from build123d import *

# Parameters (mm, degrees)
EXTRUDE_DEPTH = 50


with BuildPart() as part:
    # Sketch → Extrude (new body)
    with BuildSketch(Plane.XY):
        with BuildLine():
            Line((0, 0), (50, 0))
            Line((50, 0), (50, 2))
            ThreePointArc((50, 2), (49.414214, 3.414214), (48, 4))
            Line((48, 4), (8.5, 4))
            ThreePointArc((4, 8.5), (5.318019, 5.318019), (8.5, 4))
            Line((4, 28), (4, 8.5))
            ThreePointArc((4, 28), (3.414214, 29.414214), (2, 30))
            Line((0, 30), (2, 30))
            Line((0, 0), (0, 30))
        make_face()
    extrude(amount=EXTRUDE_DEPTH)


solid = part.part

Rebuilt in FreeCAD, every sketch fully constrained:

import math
import FreeCAD as App
import Part
import Sketcher
from FreeCAD import Vector

doc = App.newDocument("Part")
body = doc.addObject("PartDesign::Body", "Body")

# Sketch on XY plane
sketch1 = doc.addObject("Sketcher::SketchObject", "Sketch")
body.addObject(sketch1)
sketch1.AttachmentSupport = (doc.XY_Plane, [""])
sketch1.MapMode = "FlatFace"
sketch1.addGeometry([
    Part.LineSegment(Vector(0, 0, 0), Vector(50, 0, 0)),  # 0
    Part.LineSegment(Vector(50, 0, 0), Vector(50, 2, 0)),  # 1
    Part.ArcOfCircle(Part.Circle(Vector(48.000001, 2.000001, 0), Vector(0, 0, 1), 1.999999), math.radians(-0.000043), math.radians(90.000043)),  # 2
    Part.LineSegment(Vector(48, 4, 0), Vector(8.5, 4, 0)),  # 3
    Part.ArcOfCircle(Part.Circle(Vector(8.499998, 8.499998, 0), Vector(0, 0, 1), 4.499998), math.radians(179.999979), math.radians(270.000021)),  # 4
    Part.LineSegment(Vector(4, 8.5, 0), Vector(4, 28, 0)),  # 5
    Part.ArcOfCircle(Part.Circle(Vector(2.000001, 28.000001, 0), Vector(0, 0, 1), 1.999999), math.radians(-0.000043), math.radians(90.000043)),  # 6
    Part.LineSegment(Vector(2, 30, 0), Vector(0, 30, 0)),  # 7
    Part.LineSegment(Vector(0, 30, 0), Vector(0, 0, 0)),  # 8
], False)
sketch1.addConstraint([
    Sketcher.Constraint("Coincident", 0, 2, 1, 1),
    Sketcher.Constraint("Tangent", 1, 2, 2, 1),
    Sketcher.Constraint("Tangent", 2, 2, 3, 1),
    Sketcher.Constraint("Tangent", 3, 2, 4, 2),
    Sketcher.Constraint("Tangent", 4, 1, 5, 1),
    Sketcher.Constraint("Tangent", 5, 2, 6, 1),
    Sketcher.Constraint("Tangent", 6, 2, 7, 1),
    Sketcher.Constraint("Coincident", 7, 2, 8, 1),
    Sketcher.Constraint("Coincident", 8, 2, 0, 1),
    Sketcher.Constraint("Horizontal", 0),
    Sketcher.Constraint("Vertical", 1),
    Sketcher.Constraint("Horizontal", 3),
    Sketcher.Constraint("Vertical", 5),
    Sketcher.Constraint("Horizontal", 7),
    Sketcher.Constraint("Vertical", 8),
    Sketcher.Constraint("Coincident", 8, 2, -1, 1),
    Sketcher.Constraint("Equal", 2, 6),
    Sketcher.Constraint("Equal", 7, 1),
    Sketcher.Constraint("Radius", 2, 1.999999),
    Sketcher.Constraint("Radius", 4, 4.499998),
    Sketcher.Constraint("DistanceX", 0, 1, 0, 2, 50.0),
    Sketcher.Constraint("DistanceX", 7, 2, 7, 1, 2.0),
    Sketcher.Constraint("DistanceY", 8, 2, 8, 1, 30.0),
])
pad1 = doc.addObject("PartDesign::Pad", "Pad")
body.addObject(pad1)
pad1.Profile = sketch1
pad1.Length = 50

doc.recompute()
